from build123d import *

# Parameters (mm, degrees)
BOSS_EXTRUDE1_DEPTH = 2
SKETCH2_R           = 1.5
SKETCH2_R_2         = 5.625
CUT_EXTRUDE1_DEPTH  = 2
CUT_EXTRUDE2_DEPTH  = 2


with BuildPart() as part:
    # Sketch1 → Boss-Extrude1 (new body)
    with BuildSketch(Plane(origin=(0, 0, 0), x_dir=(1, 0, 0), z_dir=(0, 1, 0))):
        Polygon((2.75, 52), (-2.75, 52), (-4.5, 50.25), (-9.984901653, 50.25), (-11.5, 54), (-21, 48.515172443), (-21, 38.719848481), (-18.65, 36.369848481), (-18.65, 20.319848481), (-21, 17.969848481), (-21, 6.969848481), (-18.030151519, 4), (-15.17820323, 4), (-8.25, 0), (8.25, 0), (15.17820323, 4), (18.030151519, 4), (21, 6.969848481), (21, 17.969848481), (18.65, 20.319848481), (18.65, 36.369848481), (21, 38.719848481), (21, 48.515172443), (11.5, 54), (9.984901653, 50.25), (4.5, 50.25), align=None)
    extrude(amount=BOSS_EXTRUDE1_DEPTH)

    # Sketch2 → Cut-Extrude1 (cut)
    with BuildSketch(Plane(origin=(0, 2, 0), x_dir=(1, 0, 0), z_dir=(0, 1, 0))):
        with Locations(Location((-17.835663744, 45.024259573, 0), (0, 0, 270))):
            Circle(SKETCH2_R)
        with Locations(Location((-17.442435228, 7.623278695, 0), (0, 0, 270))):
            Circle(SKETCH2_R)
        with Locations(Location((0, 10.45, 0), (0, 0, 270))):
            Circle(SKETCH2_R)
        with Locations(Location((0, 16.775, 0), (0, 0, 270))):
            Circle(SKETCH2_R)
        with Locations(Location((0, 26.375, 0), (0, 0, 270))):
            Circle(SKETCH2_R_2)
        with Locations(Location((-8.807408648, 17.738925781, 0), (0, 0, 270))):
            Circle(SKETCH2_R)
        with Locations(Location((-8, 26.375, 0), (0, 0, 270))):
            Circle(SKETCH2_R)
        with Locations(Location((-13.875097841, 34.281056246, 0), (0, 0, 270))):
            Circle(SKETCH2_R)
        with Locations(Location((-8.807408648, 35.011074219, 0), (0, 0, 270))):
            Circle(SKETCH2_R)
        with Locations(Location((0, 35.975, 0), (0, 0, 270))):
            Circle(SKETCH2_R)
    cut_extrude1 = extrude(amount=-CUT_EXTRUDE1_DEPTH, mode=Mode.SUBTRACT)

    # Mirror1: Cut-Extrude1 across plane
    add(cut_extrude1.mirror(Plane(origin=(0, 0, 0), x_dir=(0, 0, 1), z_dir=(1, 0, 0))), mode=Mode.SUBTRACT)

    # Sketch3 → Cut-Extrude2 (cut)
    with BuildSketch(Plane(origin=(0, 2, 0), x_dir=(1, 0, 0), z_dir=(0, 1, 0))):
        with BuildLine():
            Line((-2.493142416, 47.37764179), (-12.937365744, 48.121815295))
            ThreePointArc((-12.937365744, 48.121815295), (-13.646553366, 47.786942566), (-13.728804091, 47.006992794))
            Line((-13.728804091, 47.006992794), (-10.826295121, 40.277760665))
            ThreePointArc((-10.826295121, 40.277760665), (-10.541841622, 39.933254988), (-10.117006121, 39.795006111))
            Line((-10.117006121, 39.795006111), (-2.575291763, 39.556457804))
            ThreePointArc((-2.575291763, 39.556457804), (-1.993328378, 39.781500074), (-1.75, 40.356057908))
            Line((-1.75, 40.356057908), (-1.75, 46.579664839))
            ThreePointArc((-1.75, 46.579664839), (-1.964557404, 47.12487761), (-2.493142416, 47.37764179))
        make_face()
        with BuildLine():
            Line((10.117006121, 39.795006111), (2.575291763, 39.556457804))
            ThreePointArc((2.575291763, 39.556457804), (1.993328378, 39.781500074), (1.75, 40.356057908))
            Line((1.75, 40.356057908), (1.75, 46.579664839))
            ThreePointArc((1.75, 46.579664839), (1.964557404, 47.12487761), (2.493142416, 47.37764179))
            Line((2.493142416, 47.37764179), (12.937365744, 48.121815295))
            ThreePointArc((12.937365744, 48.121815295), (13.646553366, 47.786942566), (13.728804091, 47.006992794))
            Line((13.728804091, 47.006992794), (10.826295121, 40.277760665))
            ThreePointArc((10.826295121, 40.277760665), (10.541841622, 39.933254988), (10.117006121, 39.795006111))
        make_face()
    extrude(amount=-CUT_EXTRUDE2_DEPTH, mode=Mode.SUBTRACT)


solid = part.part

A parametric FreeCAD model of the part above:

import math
import FreeCAD as App
import Part
import Sketcher
Q = App.Units.Quantity


def add_polygon(sketch, points):
    """Adds a closed chain of lines whose ends are joined by coincident constraints."""
    first, n = sketch.GeometryCount, len(points)
    for a, b in zip(points, points[1:] + points[:1]):
        sketch.addGeometry(Part.LineSegment(App.Vector(*a, 0), App.Vector(*b, 0)), False)
    for i in range(n):
        sketch.addConstraint(Sketcher.Constraint("Coincident", first + i, 2, first + (i + 1) % n, 1))

doc = App.newDocument("Part")
body = doc.addObject("PartDesign::Body", "Body")

# Sketch on XZ plane
sketch1 = body.newObject("Sketcher::SketchObject", "Sketch")
sketch1.AttachmentSupport = (doc.getObject("XZ_Plane"), [""])
sketch1.MapMode = "FlatFace"
add_polygon(sketch1, [(2.75, -52), (-2.75, -52), (-4.5, -50.25), (-9.984902, -50.25), (-11.5, -54), (-21, -48.515172), (-21, -38.719848), (-18.65, -36.369848), (-18.65, -20.319848), (-21, -17.969848), (-21, -6.969848), (-18.030152, -4), (-15.178203, -4), (-8.25, 0), (8.25, 0), (15.178203, -4), (18.030152, -4), (21, -6.969848), (21, -17.969848), (18.65, -20.319848), (18.65, -36.369848), (21, -38.719848), (21, -48.515172), (11.5, -54), (9.984902, -50.25), (4.5, -50.25)])  # lines 0-25
sketch1.addConstraint(Sketcher.Constraint("Horizontal", 0))
sketch1.addConstraint(Sketcher.Constraint("Horizontal", 2))
sketch1.addConstraint(Sketcher.Constraint("Vertical", 5))
sketch1.addConstraint(Sketcher.Constraint("Vertical", 7))
sketch1.addConstraint(Sketcher.Constraint("Vertical", 9))
sketch1.addConstraint(Sketcher.Constraint("Horizontal", 11))
sketch1.addConstraint(Sketcher.Constraint("Horizontal", 13))
sketch1.addConstraint(Sketcher.Constraint("Horizontal", 15))
sketch1.addConstraint(Sketcher.Constraint("Vertical", 17))
sketch1.addConstraint(Sketcher.Constraint("Vertical", 19))
sketch1.addConstraint(Sketcher.Constraint("Vertical", 21))
sketch1.addConstraint(Sketcher.Constraint("Horizontal", 24))
sketch1.addConstraint(Sketcher.Constraint("Symmetric", 12, 2, 13, 2, -1, 1))
sketch1.addConstraint(Sketcher.Constraint("Symmetric", 11, 2, 14, 2, -2))
sketch1.addConstraint(Sketcher.Constraint("Symmetric", 9, 2, 16, 2, -2))
sketch1.addConstraint(Sketcher.Constraint("Symmetric", 7, 2, 18, 2, -2))
sketch1.addConstraint(Sketcher.Constraint("Symmetric", 5, 2, 20, 2, -2))
sketch1.addConstraint(Sketcher.Constraint("Symmetric", 3, 2, 22, 2, -2))
sketch1.addConstraint(Sketcher.Constraint("Symmetric", 2, 2, 23, 2, -2))
sketch1.addConstraint(Sketcher.Constraint("Perpendicular", 1, 6))
sketch1.addConstraint(Sketcher.Constraint("Perpendicular", 6, 8))
sketch1.addConstraint(Sketcher.Constraint("Perpendicular", 8, 10))
sketch1.addConstraint(Sketcher.Constraint("Parallel", 4, 14))
sketch1.addConstraint(Sketcher.Constraint("Perpendicular", 10, 16))
sketch1.addConstraint(Sketcher.Constraint("Perpendicular", 16, 18))
sketch1.addConstraint(Sketcher.Constraint("Perpendicular", 18, 20))
sketch1.addConstraint(Sketcher.Constraint("Parallel", 12, 22))
sketch1.addConstraint(Sketcher.Constraint("Perpendicular", 20, 25))
sketch1.addConstraint(Sketcher.Constraint("Horizontal", 8, 2, 17, 2))
sketch1.addConstraint(Sketcher.Constraint("Vertical", 5, 2, 8, 2))
sketch1.addConstraint(Sketcher.Constraint("Equal", 2, 24))
sketch1.addConstraint(Sketcher.Constraint("DistanceY", 9, 1, 9, 2, Q("11 mm")))
sketch1.addConstraint(Sketcher.Constraint("Angle", 3, Q("-112 deg")))
sketch1.addConstraint(Sketcher.Constraint("Angle", 4, Q("150 deg")))
sketch1.addConstraint(Sketcher.Constraint("Distance", 12, Q("8 mm")))
sketch1.addConstraint(Sketcher.Constraint("DistanceX", 0, 2, 0, 1, Q("5.5 mm")))
sketch1.addConstraint(Sketcher.Constraint("DistanceX", 13, 1, 13, 2, Q("16.5 mm")))
sketch1.addConstraint(Sketcher.Constraint("DistanceY", 0, 2, -1, 1, Q("52 mm")))
sketch1.addConstraint(Sketcher.Constraint("DistanceY", 3, 2, -1, 1, Q("54 mm")))
sketch1.addConstraint(Sketcher.Constraint("DistanceX", 4, 2, -1, 1, Q("21 mm")))
sketch1.addConstraint(Sketcher.Constraint("DistanceX", 3, 2, 1, 2, Q("7 mm")))
sketch1.addConstraint(Sketcher.Constraint("DistanceX", 1, 2, 22, 2, Q("16 mm")))
sketch1.addConstraint(Sketcher.Constraint("Distance", 10, Q("4.2 mm")))
sketch1.addConstraint(Sketcher.Constraint("DistanceY", 7, 1, 7, 2, Q("16.05 mm")))
sketch1.addConstraint(Sketcher.Constraint("DistanceY", 5, 2, 7, 2, Q("18.4 mm")))
pad1 = body.newObject("PartDesign::Pad", "Pad")
pad1.Profile = sketch1
pad1.Length = 2
pad1.Reversed = True

# Sketch on XZ plane
sketch2 = body.newObject("Sketcher::SketchObject", "Sketch001")
sketch2.AttachmentSupport = (doc.getObject("XZ_Plane"), [""])
sketch2.MapMode = "FlatFace"
sketch2.AttachmentOffset = App.Placement(App.Vector(0, 0, -2), App.Rotation())
sketch2.addGeometry(Part.Circle(App.Vector(-17.835664, -45.02426, 0), App.Vector(0, 0, 1), 1.5), False)
sketch2.addGeometry(Part.Circle(App.Vector(-17.442435, -7.623279, 0), App.Vector(0, 0, 1), 1.5), False)
sketch2.addGeometry(Part.Circle(App.Vector(0, -10.45, 0), App.Vector(0, 0, 1), 1.5), False)
sketch2.addGeometry(Part.Circle(App.Vector(0, -16.775, 0), App.Vector(0, 0, 1), 1.5), False)
sketch2.addGeometry(Part.Circle(App.Vector(0, -26.375, 0), App.Vector(0, 0, 1), 5.625), False)
sketch2.addGeometry(Part.Circle(App.Vector(-8.807409, -17.738926, 0), App.Vector(0, 0, 1), 1.5), False)
sketch2.addGeometry(Part.Circle(App.Vector(-8, -26.375, 0), App.Vector(0, 0, 1), 1.5), False)
sketch2.addGeometry(Part.Circle(App.Vector(-13.875098, -34.281056, 0), App.Vector(0, 0, 1), 1.5), False)
sketch2.addGeometry(Part.Circle(App.Vector(-8.807409, -35.011074, 0), App.Vector(0, 0, 1), 1.5), False)
sketch2.addGeometry(Part.Circle(App.Vector(0, -35.975, 0), App.Vector(0, 0, 1), 1.5), False)
sketch2.addConstraint(Sketcher.Constraint("Equal", 0, 1))
sketch2.addConstraint(Sketcher.Constraint("Equal", 1, 2))
sketch2.addConstraint(Sketcher.Constraint("Equal", 2, 3))
sketch2.addConstraint(Sketcher.Constraint("Equal", 3, 5))
sketch2.addConstraint(Sketcher.Constraint("Equal", 5, 6))
sketch2.addConstraint(Sketcher.Constraint("Equal", 6, 7))
sketch2.addConstraint(Sketcher.Constraint("Equal", 7, 8))
sketch2.addConstraint(Sketcher.Constraint("Equal", 8, 9))
sketch2.addConstraint(Sketcher.Constraint("PointOnObject", 2, 3, -2))
sketch2.addConstraint(Sketcher.Constraint("PointOnObject", 3, 3, -2))
sketch2.addConstraint(Sketcher.Constraint("PointOnObject", 4, 3, -2))
sketch2.addConstraint(Sketcher.Constraint("PointOnObject", 9, 3, -2))
sketch2.addConstraint(Sketcher.Constraint("Horizontal", 4, 3, 6, 3))
sketch2.addConstraint(Sketcher.Constraint("Vertical", 5, 3, 8, 3))
sketch2.addConstraint(Sketcher.Constraint("Diameter", 0, Q("3 mm")))
sketch2.addConstraint(Sketcher.Constraint("Diameter", 4, Q("11.25 mm")))
sketch2.addConstraint(Sketcher.Constraint("DistanceX", 6, 3, -1, 1, Q("8 mm")))
sketch2.addConstraint(Sketcher.Constraint("DistanceY", 4, 3, 3, 3, Q("9.6 mm")))
sketch2.addConstraint(Sketcher.Constraint("DistanceY", 9, 3, 4, 3, Q("9.6 mm")))
sketch2.addConstraint(Sketcher.Constraint("DistanceY", 2, 3, -1, 1, Q("10.45 mm")))
sketch2.addConstraint(Sketcher.Constraint("DistanceY", 3, 3, -1, 1, Q("16.775 mm")))
sketch2.addConstraint(Sketcher.Constraint("DistanceY", 0, 3, -1, 1, Q("45.02426 mm")))
sketch2.addConstraint(Sketcher.Constraint("DistanceY", 1, 3, -1, 1, Q("7.623279 mm")))
sketch2.addConstraint(Sketcher.Constraint("DistanceX", 5, 3, -1, 1, Q("8.807409 mm")))
sketch2.addConstraint(Sketcher.Constraint("DistanceX", 0, 3, 1, 3, Q("0.393229 mm")))
sketch2.addConstraint(Sketcher.Constraint("DistanceX", 7, 3, 5, 3, Q("5.067689 mm")))
sketch2.addConstraint(Sketcher.Constraint("DistanceY", 7, 3, 5, 3, Q("16.54213 mm")))
sketch2.addConstraint(Sketcher.Constraint("DistanceY", 8, 3, 5, 3, Q("17.272148 mm")))
sketch2.addConstraint(Sketcher.Constraint("DistanceX", 0, 3, -1, 1, Q("17.835664 mm")))
sketch2.addConstraint(Sketcher.Constraint("DistanceY", 5, 3, -1, 1, Q("17.738926 mm")))
pocket1 = body.newObject("PartDesign::Pocket", "Pocket")
pocket1.Profile = sketch2
pocket1.Length = 2
pocket1.Reversed = True
doc.recompute()

mirrored = body.newObject("PartDesign::Mirrored", "Mirrored")
mirrored.Originals = [pocket1]
mirrored.MirrorPlane = (doc.getObject("YZ_Plane"), [""])
body.Tip = mirrored

# Sketch on XZ plane
sketch3 = body.newObject("Sketcher::SketchObject", "Sketch002")
sketch3.AttachmentSupport = (doc.getObject("XZ_Plane"), [""])
sketch3.MapMode = "FlatFace"
sketch3.AttachmentOffset = App.Placement(App.Vector(0, 0, -2), App.Rotation())
sketch3.addGeometry(Part.LineSegment(App.Vector(-2.493142, -47.377642, 0), App.Vector(-12.937366, -48.121815, 0)), False)
sketch3.addGeometry(Part.ArcOfCircle(Part.Circle(App.Vector(-12.994223, -47.323838, 0), App.Vector(0, 0, 1), 0.8), math.radians(156.668091), math.radians(274.07556)), False)
sketch3.addGeometry(Part.LineSegment(App.Vector(-13.728804, -47.006993, 0), App.Vector(-10.826295, -40.277761, 0)), False)
sketch3.addGeometry(Part.ArcOfCircle(Part.Circle(App.Vector(-10.091714, -40.594606, 0), App.Vector(0, 0, 1), 0.8), math.radians(91.811691), math.radians(156.668091)), False)
sketch3.addGeometry(Part.LineSegment(App.Vector(-10.117006, -39.795006, 0), App.Vector(-2.575292, -39.556458, 0)), False)
sketch3.addGeometry(Part.ArcOfCircle(Part.Circle(App.Vector(-2.55, -40.356058, 0), App.Vector(0, 0, 1), 0.8), math.radians(0), math.radians(91.811691)), False)
sketch3.addGeometry(Part.LineSegment(App.Vector(-1.75, -40.356058, 0), App.Vector(-1.75, -46.579665, 0)), False)
sketch3.addGeometry(Part.ArcOfCircle(Part.Circle(App.Vector(-2.55, -46.579665, 0), App.Vector(0, 0, 1), 0.8), math.radians(-85.924439), math.radians(0)), False)
sketch3.addGeometry(Part.LineSegment(App.Vector(2.575292, -39.556458, 0), App.Vector(10.117006, -39.795006, 0)), False)
sketch3.addGeometry(Part.ArcOfCircle(Part.Circle(App.Vector(10.091714, -40.594606, 0), App.Vector(0, 0, 1), 0.8), math.radians(23.331909), math.radians(88.188309)), False)
sketch3.addGeometry(Part.LineSegment(App.Vector(10.826295, -40.277761, 0), App.Vector(13.728804, -47.006993, 0)), False)
sketch3.addGeometry(Part.ArcOfCircle(Part.Circle(App.Vector(12.994223, -47.323838, 0), App.Vector(0, 0, 1), 0.8), math.radians(-94.07556), math.radians(23.331909)), False)
sketch3.addGeometry(Part.LineSegment(App.Vector(12.937366, -48.121815, 0), App.Vector(2.493142, -47.377642, 0)), False)
sketch3.addGeometry(Part.ArcOfCircle(Part.Circle(App.Vector(2.55, -46.579665, 0), App.Vector(0, 0, 1), 0.8), math.radians(-180), math.radians(-94.075561)), False)
sketch3.addGeometry(Part.LineSegment(App.Vector(1.75, -46.579665, 0), App.Vector(1.75, -40.356058, 0)), False)
sketch3.addGeometry(Part.ArcOfCircle(Part.Circle(App.Vector(2.55, -40.356058, 0), App.Vector(0, 0, 1), 0.8), math.radians(88.188309), math.radians(180)), False)
sketch3.addConstraint(Sketcher.Constraint("Tangent", 0, 2, 1, 2))
sketch3.addConstraint(Sketcher.Constraint("Tangent", 1, 1, 2, 1))
sketch3.addConstraint(Sketcher.Constraint("Tangent", 2, 2, 3, 2))
sketch3.addConstraint(Sketcher.Constraint("Tangent", 3, 1, 4, 1))
sketch3.addConstraint(Sketcher.Constraint("Tangent", 4, 2, 5, 2))
sketch3.addConstraint(Sketcher.Constraint("Tangent", 5, 1, 6, 1))
sketch3.addConstraint(Sketcher.Constraint("Tangent", 6, 2, 7, 2))
sketch3.addConstraint(Sketcher.Constraint("Tangent", 7, 1, 0, 1))
sketch3.addConstraint(Sketcher.Constraint("Tangent", 8, 2, 9, 2))
sketch3.addConstraint(Sketcher.Constraint("Tangent", 9, 1, 10, 1))
sketch3.addConstraint(Sketcher.Constraint("Tangent", 10, 2, 11, 2))
sketch3.addConstraint(Sketcher.Constraint("Tangent", 11, 1, 12, 1))
sketch3.addConstraint(Sketcher.Constraint("Tangent", 12, 2, 13, 2))
sketch3.addConstraint(Sketcher.Constraint("Tangent", 13, 1, 14, 1))
sketch3.addConstraint(Sketcher.Constraint("Tangent", 14, 2, 15, 2))
sketch3.addConstraint(Sketcher.Constraint("Tangent", 15, 1, 8, 1))
sketch3.addConstraint(Sketcher.Constraint("Vertical", 6))
sketch3.addConstraint(Sketcher.Constraint("Vertical", 14))
sketch3.addConstraint(Sketcher.Constraint("Equal", 1, 3))
sketch3.addConstraint(Sketcher.Constraint("Equal", 3, 5))
sketch3.addConstraint(Sketcher.Constraint("Equal", 5, 7))
sketch3.addConstraint(Sketcher.Constraint("Equal", 7, 9))
sketch3.addConstraint(Sketcher.Constraint("Equal", 9, 11))
sketch3.addConstraint(Sketcher.Constraint("Equal", 11, 13))
sketch3.addConstraint(Sketcher.Constraint("Equal", 13, 15))
sketch3.addConstraint(Sketcher.Constraint("Symmetric", 3, 3, 9, 3, -2))
sketch3.addConstraint(Sketcher.Constraint("Symmetric", 1, 3, 11, 3, -2))
sketch3.addConstraint(Sketcher.Constraint("Symmetric", 7, 3, 13, 3, -2))
sketch3.addConstraint(Sketcher.Constraint("Horizontal", 5, 3, 15, 3))
sketch3.addConstraint(Sketcher.Constraint("Radius", 1, Q("0.8 mm")))
sketch3.addConstraint(Sketcher.Constraint("DistanceX", 7, 3, 13, 3, Q("5.1 mm")))
sketch3.addConstraint(Sketcher.Constraint("Distance", 0, Q("10.470702 mm")))
sketch3.addConstraint(Sketcher.Constraint("DistanceY", 6, 2, 6, 1, Q("6.223607 mm")))
sketch3.addConstraint(Sketcher.Constraint("DistanceY", 1, 3, -1, 1, Q("47.323838 mm")))
sketch3.addConstraint(Sketcher.Constraint("DistanceY", 2, 2, -1, 1, Q("40.277761 mm")))
sketch3.addConstraint(Sketcher.Constraint("DistanceX", 4, 2, -1, 1, Q("2.575292 mm")))
sketch3.addConstraint(Sketcher.Constraint("DistanceY", 7, 1, -1, 1, Q("47.377642 mm")))
pocket2 = body.newObject("PartDesign::Pocket", "Pocket001")
pocket2.Profile = sketch3
pocket2.Length = 2
pocket2.Reversed = True

doc.recompute()
